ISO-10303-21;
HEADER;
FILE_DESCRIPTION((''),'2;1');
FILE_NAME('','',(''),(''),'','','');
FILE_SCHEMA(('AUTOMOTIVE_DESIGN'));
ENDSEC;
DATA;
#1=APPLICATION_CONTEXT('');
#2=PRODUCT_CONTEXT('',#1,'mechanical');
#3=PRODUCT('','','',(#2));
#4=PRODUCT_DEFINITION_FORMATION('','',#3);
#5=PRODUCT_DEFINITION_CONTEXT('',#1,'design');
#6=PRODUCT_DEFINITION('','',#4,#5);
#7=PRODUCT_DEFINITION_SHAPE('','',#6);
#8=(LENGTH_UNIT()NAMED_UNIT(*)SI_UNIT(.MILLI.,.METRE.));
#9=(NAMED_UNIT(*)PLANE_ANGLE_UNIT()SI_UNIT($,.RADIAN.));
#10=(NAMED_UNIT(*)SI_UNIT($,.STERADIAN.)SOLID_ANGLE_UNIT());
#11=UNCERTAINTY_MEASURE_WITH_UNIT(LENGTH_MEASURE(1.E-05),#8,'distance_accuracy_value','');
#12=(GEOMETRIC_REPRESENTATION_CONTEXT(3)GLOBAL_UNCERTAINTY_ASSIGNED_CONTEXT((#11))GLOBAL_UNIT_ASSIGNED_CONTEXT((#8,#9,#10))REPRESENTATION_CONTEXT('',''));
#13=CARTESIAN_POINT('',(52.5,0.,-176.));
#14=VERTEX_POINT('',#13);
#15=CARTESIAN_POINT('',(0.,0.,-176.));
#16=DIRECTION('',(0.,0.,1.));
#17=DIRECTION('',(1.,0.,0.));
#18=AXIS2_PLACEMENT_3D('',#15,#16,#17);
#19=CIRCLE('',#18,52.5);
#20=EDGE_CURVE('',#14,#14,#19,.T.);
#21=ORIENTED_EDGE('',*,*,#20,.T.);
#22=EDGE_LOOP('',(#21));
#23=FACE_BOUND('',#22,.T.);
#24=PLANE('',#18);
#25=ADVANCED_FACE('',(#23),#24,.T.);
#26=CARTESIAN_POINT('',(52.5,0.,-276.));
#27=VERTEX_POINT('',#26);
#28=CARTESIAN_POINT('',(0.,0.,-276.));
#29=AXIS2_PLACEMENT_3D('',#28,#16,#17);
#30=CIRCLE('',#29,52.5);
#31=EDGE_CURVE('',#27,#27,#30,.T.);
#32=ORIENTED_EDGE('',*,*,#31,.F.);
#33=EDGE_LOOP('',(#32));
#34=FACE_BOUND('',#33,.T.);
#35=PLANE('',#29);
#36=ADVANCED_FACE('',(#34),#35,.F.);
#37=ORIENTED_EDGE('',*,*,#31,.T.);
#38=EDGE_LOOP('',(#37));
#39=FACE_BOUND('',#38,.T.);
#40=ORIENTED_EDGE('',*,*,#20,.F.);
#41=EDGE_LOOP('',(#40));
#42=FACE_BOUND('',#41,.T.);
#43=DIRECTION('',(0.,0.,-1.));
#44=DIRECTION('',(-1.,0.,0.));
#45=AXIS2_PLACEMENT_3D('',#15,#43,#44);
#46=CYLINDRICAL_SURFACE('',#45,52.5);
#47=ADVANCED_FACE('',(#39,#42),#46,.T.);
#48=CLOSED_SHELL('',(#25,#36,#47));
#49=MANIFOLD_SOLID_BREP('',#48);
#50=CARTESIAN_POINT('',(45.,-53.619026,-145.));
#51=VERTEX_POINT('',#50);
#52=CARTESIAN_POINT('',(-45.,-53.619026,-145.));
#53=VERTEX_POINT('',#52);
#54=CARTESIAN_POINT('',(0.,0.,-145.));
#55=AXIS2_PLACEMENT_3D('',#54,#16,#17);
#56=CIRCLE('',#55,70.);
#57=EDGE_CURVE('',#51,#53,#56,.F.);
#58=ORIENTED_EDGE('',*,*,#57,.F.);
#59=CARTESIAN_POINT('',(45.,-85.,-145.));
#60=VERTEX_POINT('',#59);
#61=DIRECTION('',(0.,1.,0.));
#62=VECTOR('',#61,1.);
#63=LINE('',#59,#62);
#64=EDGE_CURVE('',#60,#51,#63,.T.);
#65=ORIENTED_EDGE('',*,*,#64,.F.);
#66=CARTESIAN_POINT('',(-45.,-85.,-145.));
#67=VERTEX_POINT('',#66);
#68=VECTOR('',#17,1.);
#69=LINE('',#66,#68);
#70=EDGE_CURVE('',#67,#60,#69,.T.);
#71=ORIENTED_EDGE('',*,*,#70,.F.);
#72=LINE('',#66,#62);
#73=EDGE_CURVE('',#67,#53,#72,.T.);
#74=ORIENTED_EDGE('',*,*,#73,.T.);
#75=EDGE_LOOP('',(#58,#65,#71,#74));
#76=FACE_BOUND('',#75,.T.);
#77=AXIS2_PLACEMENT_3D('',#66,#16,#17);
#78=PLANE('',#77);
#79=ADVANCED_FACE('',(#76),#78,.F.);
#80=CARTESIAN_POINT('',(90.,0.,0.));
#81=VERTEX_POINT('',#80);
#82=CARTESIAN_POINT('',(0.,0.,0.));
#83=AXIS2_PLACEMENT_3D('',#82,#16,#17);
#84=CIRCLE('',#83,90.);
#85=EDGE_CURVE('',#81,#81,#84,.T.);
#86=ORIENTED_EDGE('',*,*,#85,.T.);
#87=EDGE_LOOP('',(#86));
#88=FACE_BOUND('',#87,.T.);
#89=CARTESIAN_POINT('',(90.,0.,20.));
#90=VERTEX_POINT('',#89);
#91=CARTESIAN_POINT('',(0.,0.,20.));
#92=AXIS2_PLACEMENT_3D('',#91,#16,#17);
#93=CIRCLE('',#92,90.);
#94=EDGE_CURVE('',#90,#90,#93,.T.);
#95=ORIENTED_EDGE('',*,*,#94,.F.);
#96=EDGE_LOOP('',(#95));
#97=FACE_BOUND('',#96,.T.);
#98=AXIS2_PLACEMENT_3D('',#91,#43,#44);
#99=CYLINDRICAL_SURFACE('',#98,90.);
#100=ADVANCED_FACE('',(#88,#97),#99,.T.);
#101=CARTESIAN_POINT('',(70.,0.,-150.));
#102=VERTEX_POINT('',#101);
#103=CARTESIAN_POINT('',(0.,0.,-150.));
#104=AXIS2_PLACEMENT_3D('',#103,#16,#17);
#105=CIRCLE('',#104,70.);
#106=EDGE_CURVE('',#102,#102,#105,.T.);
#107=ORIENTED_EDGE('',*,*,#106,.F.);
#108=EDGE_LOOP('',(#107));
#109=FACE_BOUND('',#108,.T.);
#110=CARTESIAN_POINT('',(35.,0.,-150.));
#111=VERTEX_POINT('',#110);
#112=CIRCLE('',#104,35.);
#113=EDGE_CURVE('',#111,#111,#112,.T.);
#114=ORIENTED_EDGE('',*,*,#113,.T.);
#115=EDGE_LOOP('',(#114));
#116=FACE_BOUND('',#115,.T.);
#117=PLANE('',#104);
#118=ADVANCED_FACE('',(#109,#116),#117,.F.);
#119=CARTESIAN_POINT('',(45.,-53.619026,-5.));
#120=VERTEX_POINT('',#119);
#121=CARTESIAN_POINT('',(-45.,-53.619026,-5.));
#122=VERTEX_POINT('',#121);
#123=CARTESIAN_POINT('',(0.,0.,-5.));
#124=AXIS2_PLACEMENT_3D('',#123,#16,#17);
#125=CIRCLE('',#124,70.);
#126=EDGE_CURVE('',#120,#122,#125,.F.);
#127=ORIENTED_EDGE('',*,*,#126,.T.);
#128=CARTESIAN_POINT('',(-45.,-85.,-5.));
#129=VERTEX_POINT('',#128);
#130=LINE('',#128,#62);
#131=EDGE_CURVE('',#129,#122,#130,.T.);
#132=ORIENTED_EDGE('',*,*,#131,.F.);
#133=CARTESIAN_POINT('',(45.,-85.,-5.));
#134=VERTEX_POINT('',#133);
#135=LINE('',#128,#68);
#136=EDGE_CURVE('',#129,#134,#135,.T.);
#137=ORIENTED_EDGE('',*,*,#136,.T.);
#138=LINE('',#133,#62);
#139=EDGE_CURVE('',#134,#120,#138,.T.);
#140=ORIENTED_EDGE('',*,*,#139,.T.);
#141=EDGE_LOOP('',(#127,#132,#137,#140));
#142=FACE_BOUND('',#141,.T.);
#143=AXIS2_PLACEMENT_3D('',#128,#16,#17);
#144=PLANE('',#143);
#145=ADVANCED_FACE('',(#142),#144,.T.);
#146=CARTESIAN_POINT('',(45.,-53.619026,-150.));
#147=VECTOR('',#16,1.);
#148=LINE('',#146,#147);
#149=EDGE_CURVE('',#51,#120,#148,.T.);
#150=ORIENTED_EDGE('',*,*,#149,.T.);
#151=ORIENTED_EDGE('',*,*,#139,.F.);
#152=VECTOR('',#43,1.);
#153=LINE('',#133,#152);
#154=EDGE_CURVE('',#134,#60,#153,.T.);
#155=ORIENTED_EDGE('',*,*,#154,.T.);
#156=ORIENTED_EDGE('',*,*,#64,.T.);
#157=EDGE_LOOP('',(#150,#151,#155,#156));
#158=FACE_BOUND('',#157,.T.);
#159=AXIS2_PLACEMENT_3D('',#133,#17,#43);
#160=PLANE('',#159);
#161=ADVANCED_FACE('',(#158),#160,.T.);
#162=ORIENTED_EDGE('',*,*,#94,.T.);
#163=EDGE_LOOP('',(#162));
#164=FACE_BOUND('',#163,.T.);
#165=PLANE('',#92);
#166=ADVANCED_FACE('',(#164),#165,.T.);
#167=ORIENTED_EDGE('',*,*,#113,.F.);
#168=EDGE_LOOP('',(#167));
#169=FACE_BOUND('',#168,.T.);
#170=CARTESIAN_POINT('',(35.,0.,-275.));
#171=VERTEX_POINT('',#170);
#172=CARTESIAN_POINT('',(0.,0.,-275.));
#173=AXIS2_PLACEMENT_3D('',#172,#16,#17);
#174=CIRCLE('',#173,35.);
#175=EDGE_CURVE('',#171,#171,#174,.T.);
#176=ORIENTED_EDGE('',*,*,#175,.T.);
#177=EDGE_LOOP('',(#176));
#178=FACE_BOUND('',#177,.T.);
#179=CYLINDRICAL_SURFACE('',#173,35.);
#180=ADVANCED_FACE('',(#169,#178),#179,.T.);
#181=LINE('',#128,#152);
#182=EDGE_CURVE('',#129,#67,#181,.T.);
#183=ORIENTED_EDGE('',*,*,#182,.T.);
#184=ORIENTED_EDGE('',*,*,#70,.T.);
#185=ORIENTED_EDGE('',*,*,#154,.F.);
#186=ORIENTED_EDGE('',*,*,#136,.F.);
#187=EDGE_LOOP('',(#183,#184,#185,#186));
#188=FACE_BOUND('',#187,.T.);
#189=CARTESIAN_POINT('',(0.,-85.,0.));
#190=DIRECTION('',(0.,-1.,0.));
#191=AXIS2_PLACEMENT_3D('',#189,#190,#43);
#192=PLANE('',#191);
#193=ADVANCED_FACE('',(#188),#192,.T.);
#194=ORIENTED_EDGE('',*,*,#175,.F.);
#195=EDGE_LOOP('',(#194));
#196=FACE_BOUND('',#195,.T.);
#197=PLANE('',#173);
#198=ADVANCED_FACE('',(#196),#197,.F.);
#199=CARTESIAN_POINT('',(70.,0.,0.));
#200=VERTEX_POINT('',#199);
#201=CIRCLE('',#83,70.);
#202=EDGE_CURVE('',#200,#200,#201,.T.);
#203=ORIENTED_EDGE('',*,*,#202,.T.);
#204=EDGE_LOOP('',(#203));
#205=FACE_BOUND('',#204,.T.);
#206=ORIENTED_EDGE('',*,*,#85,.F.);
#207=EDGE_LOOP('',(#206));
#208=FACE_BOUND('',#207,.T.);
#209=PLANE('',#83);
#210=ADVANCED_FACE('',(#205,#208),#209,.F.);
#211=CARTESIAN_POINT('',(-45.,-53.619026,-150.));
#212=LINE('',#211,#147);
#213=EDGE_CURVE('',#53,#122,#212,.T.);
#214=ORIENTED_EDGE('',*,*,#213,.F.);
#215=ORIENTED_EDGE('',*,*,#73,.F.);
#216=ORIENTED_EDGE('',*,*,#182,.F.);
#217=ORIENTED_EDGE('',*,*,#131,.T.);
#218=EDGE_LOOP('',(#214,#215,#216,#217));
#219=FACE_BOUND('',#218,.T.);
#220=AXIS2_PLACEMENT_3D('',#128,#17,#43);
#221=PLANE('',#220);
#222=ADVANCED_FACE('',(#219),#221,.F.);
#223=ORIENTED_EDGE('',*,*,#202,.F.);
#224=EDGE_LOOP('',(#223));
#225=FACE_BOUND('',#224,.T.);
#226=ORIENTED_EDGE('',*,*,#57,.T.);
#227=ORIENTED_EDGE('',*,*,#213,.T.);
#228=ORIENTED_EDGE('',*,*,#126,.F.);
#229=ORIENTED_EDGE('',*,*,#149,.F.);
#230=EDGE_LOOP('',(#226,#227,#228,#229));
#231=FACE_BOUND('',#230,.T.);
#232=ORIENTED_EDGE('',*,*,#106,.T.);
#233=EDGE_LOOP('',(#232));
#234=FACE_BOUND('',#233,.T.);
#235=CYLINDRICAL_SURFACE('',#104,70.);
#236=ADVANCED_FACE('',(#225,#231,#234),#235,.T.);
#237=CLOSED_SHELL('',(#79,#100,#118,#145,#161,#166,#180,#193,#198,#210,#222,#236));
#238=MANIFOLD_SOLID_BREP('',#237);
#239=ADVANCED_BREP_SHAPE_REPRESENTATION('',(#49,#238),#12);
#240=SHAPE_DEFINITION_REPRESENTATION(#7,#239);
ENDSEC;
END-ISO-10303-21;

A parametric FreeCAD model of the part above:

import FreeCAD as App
import Part
import Sketcher

V = App.Vector

doc = App.newDocument("Part")
body = doc.addObject("PartDesign::Body", "Body")

# Sketch on XY plane
sketch1 = body.newObject("Sketcher::SketchObject", "Sketch")
sketch1.AttachmentSupport = (doc.getObject("XY_Plane"), [""])
sketch1.MapMode = "FlatFace"
sketch1.addGeometry(Part.Circle(V(0, 0, 0), V(0, 0, 1), 90), False)
sketch1.addConstraint([
    Sketcher.Constraint("Coincident", 0, 3, -1, 1),
    Sketcher.Constraint("Diameter", 0, 180.0),
])
pad1 = body.newObject("PartDesign::Pad", "Pad")
pad1.Profile = sketch1
pad1.Length = 20

# Sketch on XY plane
sketch2 = body.newObject("Sketcher::SketchObject", "Sketch001")
sketch2.AttachmentSupport = (doc.getObject("XY_Plane"), [""])
sketch2.MapMode = "FlatFace"
sketch2.addGeometry(Part.Circle(V(0, 0, 0), V(0, 0, 1), 70), False)
sketch2.addConstraint([
    Sketcher.Constraint("Coincident", 0, 3, -1, 1),
    Sketcher.Constraint("Diameter", 0, 140.0),
])
pad2 = body.newObject("PartDesign::Pad", "Pad001")
pad2.Profile = sketch2
pad2.Length = 150
pad2.Reversed = True

# Sketch on XY plane
sketch3 = body.newObject("Sketcher::SketchObject", "Sketch002")
sketch3.AttachmentSupport = (doc.getObject("XY_Plane"), [""])
sketch3.MapMode = "FlatFace"
sketch3.AttachmentOffset = App.Placement(V(0, 0, -150), App.Rotation())
sketch3.addGeometry(Part.Circle(V(0, 0, 0), V(0, 0, 1), 35), False)
sketch3.addConstraint([
    Sketcher.Constraint("Coincident", 0, 3, -1, 1),
    Sketcher.Constraint("Diameter", 0, 70.0),
])
pad3 = body.newObject("PartDesign::Pad", "Pad002")
pad3.Profile = sketch3
pad3.Length = 125
pad3.Reversed = True

# Sketch on XZ plane
sketch4 = body.newObject("Sketcher::SketchObject", "Sketch003")
sketch4.AttachmentSupport = (doc.getObject("XZ_Plane"), [""])
sketch4.MapMode = "FlatFace"
sketch4.addGeometry([
    Part.LineSegment(V(-45, -145, 0), V(-45, -5, 0)),
    Part.LineSegment(V(-45, -5, 0), V(45, -5, 0)),
    Part.LineSegment(V(45, -5, 0), V(45, -145, 0)),
    Part.LineSegment(V(45, -145, 0), V(-45, -145, 0)),
], False)
sketch4.addConstraint([
    Sketcher.Constraint("Coincident", 0, 2, 1, 1),
    Sketcher.Constraint("Coincident", 1, 2, 2, 1),
    Sketcher.Constraint("Coincident", 2, 2, 3, 1),
    Sketcher.Constraint("Coincident", 3, 2, 0, 1),
    Sketcher.Constraint("Vertical", 0),
    Sketcher.Constraint("Horizontal", 1),
    Sketcher.Constraint("Vertical", 2),
    Sketcher.Constraint("Horizontal", 3),
    Sketcher.Constraint("DistanceX", 1, 1, 1, 2, 90.0),
    Sketcher.Constraint("DistanceY", 0, 1, 0, 2, 140.0),
    Sketcher.Constraint("DistanceX", 0, 2, -1, 1, 45.0),
    Sketcher.Constraint("DistanceY", 0, 2, -1, 1, 5.0),
])
pad4 = body.newObject("PartDesign::Pad", "Pad003")
pad4.Profile = sketch4
pad4.Length = 85
body2 = doc.addObject("PartDesign::Body", "Body001")

# Sketch on XY plane
sketch5 = body2.newObject("Sketcher::SketchObject", "Sketch004")
sketch5.AttachmentSupport = (doc.getObject("XY_Plane001"), [""])
sketch5.MapMode = "FlatFace"
sketch5.AttachmentOffset = App.Placement(V(0, 0, -276), App.Rotation())
sketch5.addGeometry(Part.Circle(V(0, 0, 0), V(0, 0, 1), 52), False)
sketch5.addConstraint([
    Sketcher.Constraint("Coincident", 0, 3, -1, 1),
    Sketcher.Constraint("Diameter", 0, 105.0),
])
pad5 = body2.newObject("PartDesign::Pad", "Pad004")
pad5.Profile = sketch5
pad5.Length = 100

doc.recompute()
